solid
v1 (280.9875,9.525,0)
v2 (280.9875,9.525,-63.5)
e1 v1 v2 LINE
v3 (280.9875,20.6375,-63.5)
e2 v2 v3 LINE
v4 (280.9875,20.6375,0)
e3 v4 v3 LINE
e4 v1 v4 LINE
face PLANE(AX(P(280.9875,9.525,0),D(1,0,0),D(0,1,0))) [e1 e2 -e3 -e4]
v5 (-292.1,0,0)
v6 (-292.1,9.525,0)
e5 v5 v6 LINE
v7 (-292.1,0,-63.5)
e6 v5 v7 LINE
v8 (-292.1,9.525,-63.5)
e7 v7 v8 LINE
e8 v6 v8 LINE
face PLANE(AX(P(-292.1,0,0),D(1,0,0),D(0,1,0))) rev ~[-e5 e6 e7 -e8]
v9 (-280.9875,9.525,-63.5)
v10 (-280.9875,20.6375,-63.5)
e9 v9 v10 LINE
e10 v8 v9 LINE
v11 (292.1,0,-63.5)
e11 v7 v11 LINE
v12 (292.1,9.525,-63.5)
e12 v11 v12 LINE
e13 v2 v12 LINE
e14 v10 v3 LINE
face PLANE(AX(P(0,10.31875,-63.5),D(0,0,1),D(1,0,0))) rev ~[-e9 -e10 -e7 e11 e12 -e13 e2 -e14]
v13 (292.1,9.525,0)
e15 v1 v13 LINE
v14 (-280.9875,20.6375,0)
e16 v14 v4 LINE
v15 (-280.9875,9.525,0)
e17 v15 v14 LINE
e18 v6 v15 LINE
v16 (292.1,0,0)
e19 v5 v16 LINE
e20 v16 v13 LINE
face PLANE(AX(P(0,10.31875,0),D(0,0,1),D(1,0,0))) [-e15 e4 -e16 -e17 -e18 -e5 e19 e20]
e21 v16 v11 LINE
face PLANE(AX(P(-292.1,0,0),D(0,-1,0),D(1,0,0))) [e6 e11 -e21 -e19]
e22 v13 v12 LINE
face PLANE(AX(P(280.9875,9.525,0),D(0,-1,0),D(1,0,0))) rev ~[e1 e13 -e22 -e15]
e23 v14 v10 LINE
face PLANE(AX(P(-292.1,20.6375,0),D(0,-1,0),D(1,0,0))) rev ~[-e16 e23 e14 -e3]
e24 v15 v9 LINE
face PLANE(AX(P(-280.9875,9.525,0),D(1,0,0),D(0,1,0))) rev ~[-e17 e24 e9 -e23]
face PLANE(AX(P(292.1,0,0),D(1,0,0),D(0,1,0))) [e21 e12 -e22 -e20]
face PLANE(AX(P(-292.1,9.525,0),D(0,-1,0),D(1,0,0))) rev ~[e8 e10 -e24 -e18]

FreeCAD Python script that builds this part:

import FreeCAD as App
import Part
import Sketcher
from FreeCAD import Vector
Q = App.Units.Quantity


def add_polygon(sketch, points):
    """Adds a closed chain of lines whose ends are joined by coincident constraints."""
    first, n = sketch.GeometryCount, len(points)
    for a, b in zip(points, points[1:] + points[:1]):
        sketch.addGeometry(Part.LineSegment(App.Vector(*a, 0), App.Vector(*b, 0)), False)
    for i in range(n):
        sketch.addConstraint(Sketcher.Constraint("Coincident", first + i, 2, first + (i + 1) % n, 1))

doc = App.newDocument("Part")
body = doc.addObject("PartDesign::Body", "Body")

sketch1 = body.newObject("Sketcher::SketchObject", "Sketch")
sketch1.AttachmentSupport = (doc.getObject("XY_Plane"), [""])
sketch1.MapMode = "FlatFace"
add_polygon(sketch1, [(-292.1, 20.6375), (-292.1, 0), (292.1, 0), (292.1, 20.6375)])
sketch1.addConstraint([
    Sketcher.Constraint("Vertical", 0),
    Sketcher.Constraint("Horizontal", 1),
    Sketcher.Constraint("Vertical", 2),
    Sketcher.Constraint("Horizontal", 3),
    Sketcher.Constraint("Symmetric", 0, 2, 1, 2, -1, 1),
    Sketcher.Constraint("DistanceX", 1, 1, 1, 2, Q("23 in")),
    Sketcher.Constraint("DistanceY", 0, 2, 0, 1, Q("0.8125 in")),
])
pad1 = body.newObject("PartDesign::Pad", "Pad")
pad1.Profile = sketch1
pad1.Length = Q("2.5 in")
pad1.Reversed = True

sketch2 = body.newObject("Sketcher::SketchObject", "Sketch001")
sketch2.AttachmentSupport = (doc.getObject("XY_Plane"), [""])
sketch2.MapMode = "FlatFace"
add_polygon(sketch2, [(280.9875, 20.6375), (280.9875, 9.525), (292.1, 9.525), (292.1, 20.6375)])
add_polygon(sketch2, [(-292.1, 20.6375), (-292.1, 9.525), (-280.9875, 9.525), (-280.9875, 20.6375)])
sketch2.addConstraint([
    Sketcher.Constraint("Vertical", 0),
    Sketcher.Constraint("Horizontal", 1),
    Sketcher.Constraint("Vertical", 2),
    Sketcher.Constraint("Horizontal", 3),
    Sketcher.Constraint("Vertical", 4),
    Sketcher.Constraint("Horizontal", 5),
    Sketcher.Constraint("Vertical", 6),
    Sketcher.Constraint("Horizontal", 7),
    Sketcher.Constraint("Symmetric", 1, 2, 4, 2, -2),
    Sketcher.Constraint("Symmetric", 3, 2, 6, 2, -2),
    Sketcher.Constraint("Equal", 7, 0),
    Sketcher.Constraint("DistanceX", 4, 2, 1, 2, Q("23 in")),
    Sketcher.Constraint("DistanceX", 1, 1, 1, 2, Q("0.4375 in")),
    Sketcher.Constraint("DistanceY", -1, 1, 0, 2, Q("0.375 in")),
])
pocket1 = body.newObject("PartDesign::Pocket", "Pocket")
pocket1.Profile = sketch2
pocket1.Type = "ThroughAll"

doc.recompute()
